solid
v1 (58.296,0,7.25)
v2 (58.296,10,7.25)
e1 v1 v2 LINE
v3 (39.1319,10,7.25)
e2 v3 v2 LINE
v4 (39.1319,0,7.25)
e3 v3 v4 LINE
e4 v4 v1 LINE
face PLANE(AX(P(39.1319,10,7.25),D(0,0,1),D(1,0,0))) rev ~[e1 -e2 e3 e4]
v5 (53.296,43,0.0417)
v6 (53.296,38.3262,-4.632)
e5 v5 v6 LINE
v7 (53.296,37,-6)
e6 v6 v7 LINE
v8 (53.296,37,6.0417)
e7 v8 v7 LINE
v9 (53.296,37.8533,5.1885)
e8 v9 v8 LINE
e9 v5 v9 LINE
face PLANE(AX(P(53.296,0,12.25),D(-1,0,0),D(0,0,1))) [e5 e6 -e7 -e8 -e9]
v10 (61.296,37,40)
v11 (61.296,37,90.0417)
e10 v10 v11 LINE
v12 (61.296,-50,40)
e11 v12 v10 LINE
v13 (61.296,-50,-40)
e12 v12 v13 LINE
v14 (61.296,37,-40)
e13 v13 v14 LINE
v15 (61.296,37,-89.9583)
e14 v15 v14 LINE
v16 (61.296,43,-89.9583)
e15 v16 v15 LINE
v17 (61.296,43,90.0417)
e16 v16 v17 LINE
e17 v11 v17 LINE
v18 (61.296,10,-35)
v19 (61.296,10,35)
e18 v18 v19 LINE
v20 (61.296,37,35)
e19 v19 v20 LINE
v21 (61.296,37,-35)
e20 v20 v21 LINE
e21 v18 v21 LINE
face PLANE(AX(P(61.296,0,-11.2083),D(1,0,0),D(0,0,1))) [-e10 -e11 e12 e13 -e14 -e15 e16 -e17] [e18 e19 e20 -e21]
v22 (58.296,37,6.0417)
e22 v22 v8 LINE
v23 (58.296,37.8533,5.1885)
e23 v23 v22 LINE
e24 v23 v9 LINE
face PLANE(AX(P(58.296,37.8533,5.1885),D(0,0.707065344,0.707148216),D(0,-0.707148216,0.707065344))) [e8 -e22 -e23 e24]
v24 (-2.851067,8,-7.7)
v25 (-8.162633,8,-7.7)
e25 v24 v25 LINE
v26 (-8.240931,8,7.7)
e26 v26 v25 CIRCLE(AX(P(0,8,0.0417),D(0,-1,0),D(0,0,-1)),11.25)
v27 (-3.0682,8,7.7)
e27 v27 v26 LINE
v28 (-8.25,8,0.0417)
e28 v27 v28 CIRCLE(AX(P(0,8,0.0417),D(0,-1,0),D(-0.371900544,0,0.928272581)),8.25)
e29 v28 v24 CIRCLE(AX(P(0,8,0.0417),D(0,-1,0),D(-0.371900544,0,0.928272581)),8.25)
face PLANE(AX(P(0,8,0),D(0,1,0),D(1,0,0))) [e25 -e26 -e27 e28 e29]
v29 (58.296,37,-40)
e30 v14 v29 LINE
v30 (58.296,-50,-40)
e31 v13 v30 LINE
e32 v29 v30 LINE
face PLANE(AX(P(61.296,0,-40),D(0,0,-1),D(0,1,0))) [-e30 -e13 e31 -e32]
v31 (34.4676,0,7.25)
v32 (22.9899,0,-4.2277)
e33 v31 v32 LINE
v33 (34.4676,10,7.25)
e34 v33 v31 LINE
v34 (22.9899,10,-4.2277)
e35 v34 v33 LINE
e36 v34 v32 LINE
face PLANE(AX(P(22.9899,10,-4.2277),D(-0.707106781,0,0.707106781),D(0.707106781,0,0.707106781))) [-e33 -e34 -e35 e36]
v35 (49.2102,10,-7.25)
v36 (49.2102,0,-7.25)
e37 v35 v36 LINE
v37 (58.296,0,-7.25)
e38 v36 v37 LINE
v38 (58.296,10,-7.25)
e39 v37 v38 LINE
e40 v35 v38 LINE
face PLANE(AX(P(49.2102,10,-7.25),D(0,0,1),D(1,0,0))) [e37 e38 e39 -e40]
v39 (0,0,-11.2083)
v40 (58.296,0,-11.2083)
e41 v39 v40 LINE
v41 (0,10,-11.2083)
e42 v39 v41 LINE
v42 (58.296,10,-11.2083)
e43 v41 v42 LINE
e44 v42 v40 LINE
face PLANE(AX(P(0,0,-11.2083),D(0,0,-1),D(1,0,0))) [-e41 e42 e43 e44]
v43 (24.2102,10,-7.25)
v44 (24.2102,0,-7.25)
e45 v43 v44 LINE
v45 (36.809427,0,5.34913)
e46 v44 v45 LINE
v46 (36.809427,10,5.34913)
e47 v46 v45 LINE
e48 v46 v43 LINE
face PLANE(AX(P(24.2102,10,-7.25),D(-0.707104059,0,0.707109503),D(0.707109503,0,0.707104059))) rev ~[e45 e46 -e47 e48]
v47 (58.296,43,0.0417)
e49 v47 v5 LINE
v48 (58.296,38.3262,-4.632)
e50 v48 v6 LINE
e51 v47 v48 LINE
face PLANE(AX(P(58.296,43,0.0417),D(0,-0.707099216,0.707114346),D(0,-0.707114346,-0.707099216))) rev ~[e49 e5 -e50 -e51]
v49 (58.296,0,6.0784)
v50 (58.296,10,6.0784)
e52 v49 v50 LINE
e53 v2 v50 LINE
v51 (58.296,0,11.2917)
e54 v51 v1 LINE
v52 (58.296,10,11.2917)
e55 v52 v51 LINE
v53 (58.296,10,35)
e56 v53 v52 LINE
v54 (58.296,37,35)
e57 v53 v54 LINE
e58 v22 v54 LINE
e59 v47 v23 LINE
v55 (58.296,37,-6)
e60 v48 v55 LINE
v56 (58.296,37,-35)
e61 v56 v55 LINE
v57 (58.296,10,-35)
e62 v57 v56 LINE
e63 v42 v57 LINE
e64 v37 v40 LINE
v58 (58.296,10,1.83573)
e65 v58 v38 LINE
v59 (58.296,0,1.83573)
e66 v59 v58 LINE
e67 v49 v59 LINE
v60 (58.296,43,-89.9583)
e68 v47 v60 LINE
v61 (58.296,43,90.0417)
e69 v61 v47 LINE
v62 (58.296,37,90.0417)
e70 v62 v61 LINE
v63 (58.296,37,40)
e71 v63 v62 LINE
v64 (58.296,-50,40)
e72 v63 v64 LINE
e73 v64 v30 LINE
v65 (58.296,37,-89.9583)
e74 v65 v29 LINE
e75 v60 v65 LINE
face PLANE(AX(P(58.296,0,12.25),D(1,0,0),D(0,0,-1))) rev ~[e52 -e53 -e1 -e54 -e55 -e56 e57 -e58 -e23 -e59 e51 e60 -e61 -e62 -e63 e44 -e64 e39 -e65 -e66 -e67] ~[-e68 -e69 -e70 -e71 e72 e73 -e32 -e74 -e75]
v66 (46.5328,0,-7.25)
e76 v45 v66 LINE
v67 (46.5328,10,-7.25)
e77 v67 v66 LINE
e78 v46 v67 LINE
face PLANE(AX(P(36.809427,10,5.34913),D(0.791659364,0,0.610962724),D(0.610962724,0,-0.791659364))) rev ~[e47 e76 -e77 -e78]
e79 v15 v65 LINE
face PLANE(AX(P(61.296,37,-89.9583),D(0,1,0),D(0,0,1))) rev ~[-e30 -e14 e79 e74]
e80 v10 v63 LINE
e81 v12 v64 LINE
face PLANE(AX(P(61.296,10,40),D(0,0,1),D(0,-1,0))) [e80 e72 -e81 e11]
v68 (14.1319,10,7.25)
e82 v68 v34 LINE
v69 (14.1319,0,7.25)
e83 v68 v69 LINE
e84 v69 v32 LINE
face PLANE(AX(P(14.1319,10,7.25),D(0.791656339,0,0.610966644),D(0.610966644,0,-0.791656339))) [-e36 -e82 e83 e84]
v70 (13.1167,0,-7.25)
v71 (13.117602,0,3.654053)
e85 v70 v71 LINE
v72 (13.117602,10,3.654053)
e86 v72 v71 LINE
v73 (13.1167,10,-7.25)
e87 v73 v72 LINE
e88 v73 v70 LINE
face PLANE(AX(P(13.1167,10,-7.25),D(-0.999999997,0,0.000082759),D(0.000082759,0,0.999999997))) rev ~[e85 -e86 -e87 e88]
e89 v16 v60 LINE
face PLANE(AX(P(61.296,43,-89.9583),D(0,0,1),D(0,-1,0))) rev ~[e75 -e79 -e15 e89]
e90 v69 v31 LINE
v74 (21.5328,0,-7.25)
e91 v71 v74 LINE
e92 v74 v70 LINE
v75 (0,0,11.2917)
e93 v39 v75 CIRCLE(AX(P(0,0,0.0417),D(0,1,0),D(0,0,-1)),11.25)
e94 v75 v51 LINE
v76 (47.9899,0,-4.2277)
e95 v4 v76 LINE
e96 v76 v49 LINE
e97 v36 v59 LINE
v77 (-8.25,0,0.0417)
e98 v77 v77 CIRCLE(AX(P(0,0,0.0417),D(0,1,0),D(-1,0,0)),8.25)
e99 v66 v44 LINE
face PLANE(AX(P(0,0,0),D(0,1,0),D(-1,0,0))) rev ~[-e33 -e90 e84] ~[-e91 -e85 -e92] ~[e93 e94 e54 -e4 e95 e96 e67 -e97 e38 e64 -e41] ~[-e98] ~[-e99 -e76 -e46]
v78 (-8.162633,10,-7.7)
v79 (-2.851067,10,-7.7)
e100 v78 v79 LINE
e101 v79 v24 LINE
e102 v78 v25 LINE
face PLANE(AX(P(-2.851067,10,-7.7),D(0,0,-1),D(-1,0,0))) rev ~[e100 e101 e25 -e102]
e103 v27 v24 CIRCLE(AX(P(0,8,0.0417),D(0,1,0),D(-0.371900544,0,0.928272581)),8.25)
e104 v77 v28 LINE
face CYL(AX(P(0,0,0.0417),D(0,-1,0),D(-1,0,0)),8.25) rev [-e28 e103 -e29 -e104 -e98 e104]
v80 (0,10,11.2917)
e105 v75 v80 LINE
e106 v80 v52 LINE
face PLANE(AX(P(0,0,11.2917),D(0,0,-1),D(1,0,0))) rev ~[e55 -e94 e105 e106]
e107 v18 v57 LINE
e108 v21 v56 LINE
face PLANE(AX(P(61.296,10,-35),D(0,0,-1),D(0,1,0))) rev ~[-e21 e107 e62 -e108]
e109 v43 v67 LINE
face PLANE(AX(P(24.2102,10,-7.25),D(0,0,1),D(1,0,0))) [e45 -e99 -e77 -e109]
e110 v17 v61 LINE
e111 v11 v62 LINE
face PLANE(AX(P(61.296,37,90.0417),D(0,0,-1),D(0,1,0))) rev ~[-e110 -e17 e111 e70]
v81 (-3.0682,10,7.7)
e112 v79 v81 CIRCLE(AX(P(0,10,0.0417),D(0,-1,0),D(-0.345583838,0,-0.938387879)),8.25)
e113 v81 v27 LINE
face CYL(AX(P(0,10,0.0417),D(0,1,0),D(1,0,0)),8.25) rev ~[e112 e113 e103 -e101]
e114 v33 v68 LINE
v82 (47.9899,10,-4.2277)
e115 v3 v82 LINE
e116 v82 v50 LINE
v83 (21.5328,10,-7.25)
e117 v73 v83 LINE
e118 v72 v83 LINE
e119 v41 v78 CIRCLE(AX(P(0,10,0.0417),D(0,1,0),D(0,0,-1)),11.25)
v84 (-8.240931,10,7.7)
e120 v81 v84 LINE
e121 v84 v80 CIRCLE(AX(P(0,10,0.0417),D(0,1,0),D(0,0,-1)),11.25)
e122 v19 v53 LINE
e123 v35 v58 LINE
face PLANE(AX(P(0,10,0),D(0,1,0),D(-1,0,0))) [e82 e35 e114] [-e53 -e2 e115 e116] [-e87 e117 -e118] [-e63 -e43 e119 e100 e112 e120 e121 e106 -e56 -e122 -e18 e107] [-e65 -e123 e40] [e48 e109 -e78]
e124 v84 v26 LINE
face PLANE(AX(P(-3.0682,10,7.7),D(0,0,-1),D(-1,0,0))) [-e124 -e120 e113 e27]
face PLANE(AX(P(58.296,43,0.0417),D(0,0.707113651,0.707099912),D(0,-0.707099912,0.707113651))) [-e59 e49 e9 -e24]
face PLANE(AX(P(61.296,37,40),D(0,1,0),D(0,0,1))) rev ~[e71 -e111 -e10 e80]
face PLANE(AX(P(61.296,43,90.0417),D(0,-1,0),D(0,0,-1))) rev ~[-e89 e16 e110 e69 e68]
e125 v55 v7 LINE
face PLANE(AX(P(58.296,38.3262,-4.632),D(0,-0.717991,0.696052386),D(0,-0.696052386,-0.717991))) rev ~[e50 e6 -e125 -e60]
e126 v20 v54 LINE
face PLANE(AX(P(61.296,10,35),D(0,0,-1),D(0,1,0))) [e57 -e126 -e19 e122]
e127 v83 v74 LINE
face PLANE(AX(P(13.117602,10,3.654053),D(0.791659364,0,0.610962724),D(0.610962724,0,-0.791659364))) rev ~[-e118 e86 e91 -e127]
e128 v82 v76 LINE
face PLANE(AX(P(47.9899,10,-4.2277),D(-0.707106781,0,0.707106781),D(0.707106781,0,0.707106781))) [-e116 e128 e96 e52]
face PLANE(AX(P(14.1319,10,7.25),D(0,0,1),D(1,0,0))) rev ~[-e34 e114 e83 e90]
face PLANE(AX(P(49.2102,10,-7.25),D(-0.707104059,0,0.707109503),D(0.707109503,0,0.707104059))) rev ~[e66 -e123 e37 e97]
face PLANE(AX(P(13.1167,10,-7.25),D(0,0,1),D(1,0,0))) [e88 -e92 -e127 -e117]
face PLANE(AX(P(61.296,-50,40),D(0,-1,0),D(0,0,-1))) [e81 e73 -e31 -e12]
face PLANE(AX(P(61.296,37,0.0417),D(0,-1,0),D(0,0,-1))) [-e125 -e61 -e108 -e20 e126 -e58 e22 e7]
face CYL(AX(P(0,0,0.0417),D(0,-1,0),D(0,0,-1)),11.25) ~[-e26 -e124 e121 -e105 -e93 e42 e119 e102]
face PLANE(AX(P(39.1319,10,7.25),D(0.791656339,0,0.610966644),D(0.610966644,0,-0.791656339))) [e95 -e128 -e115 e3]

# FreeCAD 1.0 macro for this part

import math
import FreeCAD as App
import Part
import Sketcher

V = App.Vector
Q = App.Units.Quantity

doc = App.newDocument("Part")
params = doc.addObject("Spreadsheet::Sheet", "Params")
for row, (alias, value) in enumerate([
    ("sketch1_diameter", "16.5 mm"),
    ("sketch1_radius", "11.25 mm"),
    ("pad1_length", "10 mm"),
    ("pocket1_length", "10 mm"),
    ("sketch3_height", "80 mm"),
    ("sketch3_height2", "180 mm"),
    ("sketch3_width", "87 mm"),
    ("sketch3_width2", "6 mm"),
    ("pad2_length", "3 mm"),
    ("sketch4_height", "15.4 mm"),
    ("sketch4_radius", "8.25 mm"),
    ("pocket2_length", "2 mm"),
    ("pad3_length", "5 mm"),
], start=1):
    params.set(f"A{row}", alias)
    params.set(f"B{row}", "=" + value)
    params.setAlias(f"B{row}", alias)

body = doc.addObject("PartDesign::Body", "Body")

# Sketch on XZ plane
sketch1 = body.newObject("Sketcher::SketchObject", "Sketch")
sketch1.AttachmentSupport = (doc.getObject("XZ_Plane"), [""])
sketch1.MapMode = "FlatFace"
sketch1.addGeometry([
    Part.LineSegment(V(61, 11, 0), V(61, -11, 0)),  # 0
    Part.LineSegment(V(61, -11, 0), V(0, -11, 0)),  # 1
    Part.ArcOfCircle(Part.Circle(V(0, 0, 0), V(0, 0, 1), 11), math.radians(90), math.radians(270)),  # 2
    Part.LineSegment(V(0, 11, 0), V(61, 11, 0)),  # 3
    Part.Circle(V(0, 0, 0), V(0, 0, 1), 8),  # 4
], False)
sketch1.addConstraint([
    Sketcher.Constraint("Coincident", 0, 2, 1, 1),
    Sketcher.Constraint("Tangent", 1, 2, 2, 2),
    Sketcher.Constraint("Tangent", 2, 1, 3, 1),
    Sketcher.Constraint("Coincident", 3, 2, 0, 1),
    Sketcher.Constraint("Vertical", 0),
    Sketcher.Constraint("Horizontal", 1),
    Sketcher.Constraint("Horizontal", 3),
    Sketcher.Constraint("Coincident", 4, 3, 2, 3),
    Sketcher.Constraint("PointOnObject", 2, 3, -2),
    Sketcher.Constraint("Diameter", 4, 16.5),
    Sketcher.Constraint("DistanceX", 1, 2, 1, 1, 61.296),
    Sketcher.Constraint("Radius", 2, 11.25),
    Sketcher.Constraint("DistanceY", -1, 1, 2, 3, 0.0417),
])
sketch1.setExpression("Constraints[9]", "Params.sketch1_diameter")
sketch1.setExpression("Constraints[11]", "Params.sketch1_radius")
pad1 = body.newObject("PartDesign::Pad", "Pad")
pad1.Profile = sketch1
pad1.setExpression("Length", "Params.pad1_length")
pad1.Reversed = True

# Sketch on XZ plane
sketch2 = body.newObject("Sketcher::SketchObject", "Sketch001")
sketch2.AttachmentSupport = (doc.getObject("XZ_Plane"), [""])
sketch2.MapMode = "FlatFace"
sketch2.AttachmentOffset = App.Placement(V(0, 0, -10), App.Rotation())
sketch2.addGeometry([
    Part.LineSegment(V(22, -7, 0), V(13, -7, 0)),  # 0
    Part.LineSegment(V(13, -7, 0), V(13, 4, 0)),  # 1
    Part.LineSegment(V(13, 4, 0), V(22, -7, 0)),  # 2
    Part.LineSegment(V(23, -4, 0), V(14, 7, 0)),  # 3
    Part.LineSegment(V(14, 7, 0), V(34, 7, 0)),  # 4
    Part.LineSegment(V(34, 7, 0), V(23, -4, 0)),  # 5
    Part.LineSegment(V(24, -7, 0), V(37, 5, 0)),  # 6
    Part.LineSegment(V(37, 5, 0), V(47, -7, 0)),  # 7
    Part.LineSegment(V(47, -7, 0), V(24, -7, 0)),  # 8
    Part.LineSegment(V(61, -7, 0), V(49, -7, 0)),  # 9
    Part.LineSegment(V(49, -7, 0), V(61, 5, 0)),  # 10
    Part.LineSegment(V(61, 5, 0), V(61, -7, 0)),  # 11
    Part.LineSegment(V(48, -4, 0), V(39, 7, 0)),  # 12
    Part.LineSegment(V(39, 7, 0), V(59, 7, 0)),  # 13
    Part.LineSegment(V(59, 7, 0), V(48, -4, 0)),  # 14
], False)
sketch2.addConstraint([
    Sketcher.Constraint("Coincident", 0, 2, 1, 1),
    Sketcher.Constraint("Coincident", 1, 2, 2, 1),
    Sketcher.Constraint("Coincident", 2, 2, 0, 1),
    Sketcher.Constraint("Coincident", 3, 2, 4, 1),
    Sketcher.Constraint("Coincident", 4, 2, 5, 1),
    Sketcher.Constraint("Coincident", 5, 2, 3, 1),
    Sketcher.Constraint("Coincident", 6, 2, 7, 1),
    Sketcher.Constraint("Coincident", 7, 2, 8, 1),
    Sketcher.Constraint("Coincident", 8, 2, 6, 1),
    Sketcher.Constraint("Coincident", 9, 2, 10, 1),
    Sketcher.Constraint("Coincident", 10, 2, 11, 1),
    Sketcher.Constraint("Coincident", 11, 2, 9, 1),
    Sketcher.Constraint("Coincident", 12, 2, 13, 1),
    Sketcher.Constraint("Coincident", 13, 2, 14, 1),
    Sketcher.Constraint("Coincident", 14, 2, 12, 1),
    Sketcher.Constraint("Horizontal", 0),
    Sketcher.Constraint("Horizontal", 4),
    Sketcher.Constraint("Horizontal", 8),
    Sketcher.Constraint("Horizontal", 9),
    Sketcher.Constraint("Vertical", 11),
    Sketcher.Constraint("Horizontal", 13),
    Sketcher.Constraint("Parallel", 2, 3),
    Sketcher.Constraint("Parallel", 5, 6),
    Sketcher.Constraint("Parallel", 3, 7),
    Sketcher.Constraint("Parallel", 6, 10),
    Sketcher.Constraint("Parallel", 7, 12),
    Sketcher.Constraint("Parallel", 10, 14),
    Sketcher.Constraint("Horizontal", 2, 2, 7, 2),
    Sketcher.Constraint("Horizontal", 8, 2, 9, 2),
    Sketcher.Constraint("Horizontal", 4, 2, 12, 2),
    Sketcher.Constraint("Horizontal", 5, 2, 14, 2),
    Sketcher.Constraint("Equal", 9, 11),
    Sketcher.Constraint("DistanceX", 2, 2, 7, 2, 25.0),
    Sketcher.Constraint("DistanceX", 8, 2, 9, 2, 25.0),
    Sketcher.Constraint("Angle", 2, Q("-52.3409 deg")),
    Sketcher.Constraint("DistanceY", 0, 2, 3, 2, 14.5),
    Sketcher.Constraint("DistanceX", 0, 2, 0, 1, 8.416),
    Sketcher.Constraint("DistanceY", 0, 2, -1, 1, 7.25),
    Sketcher.Constraint("DistanceX", -1, 1, 5, 2, 22.99),
    Sketcher.Constraint("DistanceX", -1, 1, 14, 2, 47.99),
    Sketcher.Constraint("DistanceX", 1, 2, 4, 2, 21.35),
    Sketcher.Constraint("Distance", 1, 10.904),
    Sketcher.Constraint("Distance", 5, 16.232),
    Sketcher.Constraint("Distance", 6, 17.818),
    Sketcher.Constraint("DistanceX", 9, 2, 9, 1, 12.0858),
])
pocket1 = body.newObject("PartDesign::Pocket", "Pocket")
pocket1.Profile = sketch2
pocket1.setExpression("Length", "Params.pocket1_length")
pocket1.Reversed = True

# Sketch on YZ plane
sketch3 = body.newObject("Sketcher::SketchObject", "Sketch002")
sketch3.AttachmentSupport = (doc.getObject("YZ_Plane"), [""])
sketch3.MapMode = "FlatFace"
sketch3.AttachmentOffset = App.Placement(V(0, 0, 61.296), App.Rotation())
sketch3.addGeometry([
    Part.LineSegment(V(-50, 40, 0), V(-50, -40, 0)),  # 0
    Part.LineSegment(V(-50, -40, 0), V(37, -40, 0)),  # 1
    Part.LineSegment(V(37, -40, 0), V(37, -90, 0)),  # 2
    Part.LineSegment(V(37, -90, 0), V(43, -90, 0)),  # 3
    Part.LineSegment(V(43, -90, 0), V(43, 90, 0)),  # 4
    Part.LineSegment(V(43, 90, 0), V(37, 90, 0)),  # 5
    Part.LineSegment(V(37, 90, 0), V(37, 40, 0)),  # 6
    Part.LineSegment(V(37, 40, 0), V(-50, 40, 0)),  # 7
    Part.LineSegment(V(10, 35, 0), V(37, 35, 0)),  # 8
    Part.LineSegment(V(37, 35, 0), V(37, -35, 0)),  # 9
    Part.LineSegment(V(37, -35, 0), V(10, -35, 0)),  # 10
    Part.LineSegment(V(10, -35, 0), V(10, 35, 0)),  # 11
], False)
sketch3.addConstraint([
    Sketcher.Constraint("Coincident", 0, 2, 1, 1),
    Sketcher.Constraint("Coincident", 1, 2, 2, 1),
    Sketcher.Constraint("Coincident", 2, 2, 3, 1),
    Sketcher.Constraint("Coincident", 3, 2, 4, 1),
    Sketcher.Constraint("Coincident", 4, 2, 5, 1),
    Sketcher.Constraint("Coincident", 5, 2, 6, 1),
    Sketcher.Constraint("Coincident", 6, 2, 7, 1),
    Sketcher.Constraint("Coincident", 7, 2, 0, 1),
    Sketcher.Constraint("Coincident", 8, 2, 9, 1),
    Sketcher.Constraint("Coincident", 9, 2, 10, 1),
    Sketcher.Constraint("Coincident", 10, 2, 11, 1),
    Sketcher.Constraint("Coincident", 11, 2, 8, 1),
    Sketcher.Constraint("Vertical", 0),
    Sketcher.Constraint("Horizontal", 1),
    Sketcher.Constraint("Vertical", 2),
    Sketcher.Constraint("Horizontal", 3),
    Sketcher.Constraint("Vertical", 4),
    Sketcher.Constraint("Horizontal", 5),
    Sketcher.Constraint("Vertical", 6),
    Sketcher.Constraint("Horizontal", 7),
    Sketcher.Constraint("Horizontal", 8),
    Sketcher.Constraint("Vertical", 9),
    Sketcher.Constraint("Horizontal", 10),
    Sketcher.Constraint("Vertical", 11),
    Sketcher.Constraint("Symmetric", 1, 2, 6, 2, -1),
    Sketcher.Constraint("Vertical", 6, 2, 8, 2),
    Sketcher.Constraint("DistanceY", 0, 2, 0, 1, 80.0),
    Sketcher.Constraint("DistanceY", 4, 1, 4, 2, 180.0),
    Sketcher.Constraint("DistanceY", 8, 2, 6, 2, 5.0),
    Sketcher.Constraint("DistanceY", 1, 2, 9, 2, 5.0),
    Sketcher.Constraint("DistanceX", 0, 2, 10, 2, 60.0),
    Sketcher.Constraint("DistanceX", 1, 1, 1, 2, 87.0),
    Sketcher.Constraint("DistanceX", 3, 1, 3, 2, 6.0),
    Sketcher.Constraint("DistanceX", 0, 2, -1, 1, 50.0),
    Sketcher.Constraint("DistanceY", 2, 2, 2, 1, 49.9583),
])
sketch3.setExpression("Constraints[26]", "Params.sketch3_height")
sketch3.setExpression("Constraints[27]", "Params.sketch3_height2")
sketch3.setExpression("Constraints[31]", "Params.sketch3_width")
sketch3.setExpression("Constraints[32]", "Params.sketch3_width2")
pad2 = body.newObject("PartDesign::Pad", "Pad001")
pad2.Profile = sketch3
pad2.setExpression("Length", "Params.pad2_length")
pad2.Reversed = True

# Sketch on XZ plane
sketch4 = body.newObject("Sketcher::SketchObject", "Sketch003")
sketch4.AttachmentSupport = (doc.getObject("XZ_Plane"), [""])
sketch4.MapMode = "FlatFace"
sketch4.AttachmentOffset = App.Placement(V(0, 0, -10), App.Rotation())
sketch4.addGeometry([
    Part.LineSegment(V(-2.9, -7.7, 0), V(-14.7, -7.7, 0)),  # 0
    Part.LineSegment(V(-14.7, -7.7, 0), V(-14.7, 7.7, 0)),  # 1
    Part.LineSegment(V(-14.7, 7.7, 0), V(-3.1, 7.7, 0)),  # 2
    Part.ArcOfCircle(Part.Circle(V(0, 0, 0), V(0, 0, 1), 8.2), math.radians(112), math.radians(250)),  # 3
    Part.LineSegment(V(0, 7.7, 0), V(-3.1, 7.7, 0)),  # 4
    Part.ArcOfCircle(Part.Circle(V(0, 0, 0), V(0, 0, 1), 8.2), math.radians(-110), math.radians(112)),  # 5
    Part.LineSegment(V(-2.9, -7.7, 0), V(0, -7.7, 0)),  # 6
    Part.LineSegment(V(0, -7.7, 0), V(0, 7.7, 0)),  # 7
], False)
sketch4.addConstraint([
    Sketcher.Constraint("Coincident", 0, 2, 1, 1),
    Sketcher.Constraint("Coincident", 1, 2, 2, 1),
    Sketcher.Constraint("Coincident", 2, 2, 3, 1),
    Sketcher.Constraint("Coincident", 3, 2, 0, 1),
    Sketcher.Constraint("Coincident", 4, 2, 5, 2),
    Sketcher.Constraint("Coincident", 5, 1, 6, 1),
    Sketcher.Constraint("Coincident", 6, 2, 7, 1),
    Sketcher.Constraint("Coincident", 7, 2, 4, 1),
    Sketcher.Constraint("Horizontal", 0),
    Sketcher.Constraint("Vertical", 1),
    Sketcher.Constraint("Horizontal", 2),
    Sketcher.Constraint("Horizontal", 4),
    Sketcher.Constraint("Horizontal", 6),
    Sketcher.Constraint("Vertical", 7),
    Sketcher.Constraint("Coincident", 5, 3, 3, 3),
    Sketcher.Constraint("Coincident", 4, 2, 2, 2),
    Sketcher.Constraint("Symmetric", 6, 2, 7, 2, -1, 1),
    Sketcher.Constraint("PointOnObject", 3, 3, -2),
    Sketcher.Constraint("Horizontal", 0, 2, 5, 1),
    Sketcher.Constraint("DistanceY", 1, 1, 1, 2, 15.4),
    Sketcher.Constraint("Radius", 3, 8.25),
    Sketcher.Constraint("DistanceX", 6, 1, 6, 2, 2.851),
    Sketcher.Constraint("DistanceX", 0, 2, 0, 1, 11.8294),
])
sketch4.setExpression("Constraints[19]", "Params.sketch4_height")
sketch4.setExpression("Constraints[20]", "Params.sketch4_radius")
pocket2 = body.newObject("PartDesign::Pocket", "Pocket001")
pocket2.Profile = sketch4
pocket2.setExpression("Length", "Params.pocket2_length")
pocket2.Reversed = True

# Sketch on YZ plane
sketch5 = body.newObject("Sketcher::SketchObject", "Sketch004")
sketch5.AttachmentSupport = (doc.getObject("YZ_Plane"), [""])
sketch5.MapMode = "FlatFace"
sketch5.AttachmentOffset = App.Placement(V(0, 0, 58.296), App.Rotation())
sketch5.addGeometry([
    Part.LineSegment(V(37, -6, 0), V(37, 6.0417, 0)),  # 0
    Part.LineSegment(V(37, 6.0417, 0), V(37.8533, 5.1885, 0)),  # 1
    Part.LineSegment(V(37.8533, 5.1885, 0), V(43, 0.0417, 0)),  # 2
    Part.LineSegment(V(43, 0.0417, 0), V(38.3262, -4.632, 0)),  # 3
    Part.LineSegment(V(38.3262, -4.632, 0), V(37, -6, 0)),  # 4
], False)
sketch5.addConstraint([
    Sketcher.Constraint("Coincident", 0, 2, 1, 1),
    Sketcher.Constraint("Coincident", 1, 2, 2, 1),
    Sketcher.Constraint("Coincident", 2, 2, 3, 1),
    Sketcher.Constraint("Coincident", 3, 2, 4, 1),
    Sketcher.Constraint("Coincident", 4, 2, 0, 1),
    Sketcher.Constraint("Vertical", 0),
    Sketcher.Constraint("DistanceX", -1, 1, 0, 2, 37.0),
    Sketcher.Constraint("DistanceX", -1, 1, 2, 2, 43.0),
    Sketcher.Constraint("DistanceY", 4, 2, -1, 1, 6.0),
    Sketcher.Constraint("DistanceY", 2, 2, 0, 2, 6.0),
    Sketcher.Constraint("DistanceY", 0, 1, 0, 2, 12.0417),
    Sketcher.Constraint("DistanceY", 3, 2, -1, 1, 4.632),
    Sketcher.Constraint("DistanceX", 1, 2, 3, 2, 0.473),
    Sketcher.Constraint("Distance", 1, 1.2067),
    Sketcher.Constraint("Distance", 3, 6.6097),
])
pad3 = body.newObject("PartDesign::Pad", "Pad002")
pad3.Profile = sketch5
pad3.setExpression("Length", "Params.pad3_length")
pad3.Reversed = True

doc.recompute()
